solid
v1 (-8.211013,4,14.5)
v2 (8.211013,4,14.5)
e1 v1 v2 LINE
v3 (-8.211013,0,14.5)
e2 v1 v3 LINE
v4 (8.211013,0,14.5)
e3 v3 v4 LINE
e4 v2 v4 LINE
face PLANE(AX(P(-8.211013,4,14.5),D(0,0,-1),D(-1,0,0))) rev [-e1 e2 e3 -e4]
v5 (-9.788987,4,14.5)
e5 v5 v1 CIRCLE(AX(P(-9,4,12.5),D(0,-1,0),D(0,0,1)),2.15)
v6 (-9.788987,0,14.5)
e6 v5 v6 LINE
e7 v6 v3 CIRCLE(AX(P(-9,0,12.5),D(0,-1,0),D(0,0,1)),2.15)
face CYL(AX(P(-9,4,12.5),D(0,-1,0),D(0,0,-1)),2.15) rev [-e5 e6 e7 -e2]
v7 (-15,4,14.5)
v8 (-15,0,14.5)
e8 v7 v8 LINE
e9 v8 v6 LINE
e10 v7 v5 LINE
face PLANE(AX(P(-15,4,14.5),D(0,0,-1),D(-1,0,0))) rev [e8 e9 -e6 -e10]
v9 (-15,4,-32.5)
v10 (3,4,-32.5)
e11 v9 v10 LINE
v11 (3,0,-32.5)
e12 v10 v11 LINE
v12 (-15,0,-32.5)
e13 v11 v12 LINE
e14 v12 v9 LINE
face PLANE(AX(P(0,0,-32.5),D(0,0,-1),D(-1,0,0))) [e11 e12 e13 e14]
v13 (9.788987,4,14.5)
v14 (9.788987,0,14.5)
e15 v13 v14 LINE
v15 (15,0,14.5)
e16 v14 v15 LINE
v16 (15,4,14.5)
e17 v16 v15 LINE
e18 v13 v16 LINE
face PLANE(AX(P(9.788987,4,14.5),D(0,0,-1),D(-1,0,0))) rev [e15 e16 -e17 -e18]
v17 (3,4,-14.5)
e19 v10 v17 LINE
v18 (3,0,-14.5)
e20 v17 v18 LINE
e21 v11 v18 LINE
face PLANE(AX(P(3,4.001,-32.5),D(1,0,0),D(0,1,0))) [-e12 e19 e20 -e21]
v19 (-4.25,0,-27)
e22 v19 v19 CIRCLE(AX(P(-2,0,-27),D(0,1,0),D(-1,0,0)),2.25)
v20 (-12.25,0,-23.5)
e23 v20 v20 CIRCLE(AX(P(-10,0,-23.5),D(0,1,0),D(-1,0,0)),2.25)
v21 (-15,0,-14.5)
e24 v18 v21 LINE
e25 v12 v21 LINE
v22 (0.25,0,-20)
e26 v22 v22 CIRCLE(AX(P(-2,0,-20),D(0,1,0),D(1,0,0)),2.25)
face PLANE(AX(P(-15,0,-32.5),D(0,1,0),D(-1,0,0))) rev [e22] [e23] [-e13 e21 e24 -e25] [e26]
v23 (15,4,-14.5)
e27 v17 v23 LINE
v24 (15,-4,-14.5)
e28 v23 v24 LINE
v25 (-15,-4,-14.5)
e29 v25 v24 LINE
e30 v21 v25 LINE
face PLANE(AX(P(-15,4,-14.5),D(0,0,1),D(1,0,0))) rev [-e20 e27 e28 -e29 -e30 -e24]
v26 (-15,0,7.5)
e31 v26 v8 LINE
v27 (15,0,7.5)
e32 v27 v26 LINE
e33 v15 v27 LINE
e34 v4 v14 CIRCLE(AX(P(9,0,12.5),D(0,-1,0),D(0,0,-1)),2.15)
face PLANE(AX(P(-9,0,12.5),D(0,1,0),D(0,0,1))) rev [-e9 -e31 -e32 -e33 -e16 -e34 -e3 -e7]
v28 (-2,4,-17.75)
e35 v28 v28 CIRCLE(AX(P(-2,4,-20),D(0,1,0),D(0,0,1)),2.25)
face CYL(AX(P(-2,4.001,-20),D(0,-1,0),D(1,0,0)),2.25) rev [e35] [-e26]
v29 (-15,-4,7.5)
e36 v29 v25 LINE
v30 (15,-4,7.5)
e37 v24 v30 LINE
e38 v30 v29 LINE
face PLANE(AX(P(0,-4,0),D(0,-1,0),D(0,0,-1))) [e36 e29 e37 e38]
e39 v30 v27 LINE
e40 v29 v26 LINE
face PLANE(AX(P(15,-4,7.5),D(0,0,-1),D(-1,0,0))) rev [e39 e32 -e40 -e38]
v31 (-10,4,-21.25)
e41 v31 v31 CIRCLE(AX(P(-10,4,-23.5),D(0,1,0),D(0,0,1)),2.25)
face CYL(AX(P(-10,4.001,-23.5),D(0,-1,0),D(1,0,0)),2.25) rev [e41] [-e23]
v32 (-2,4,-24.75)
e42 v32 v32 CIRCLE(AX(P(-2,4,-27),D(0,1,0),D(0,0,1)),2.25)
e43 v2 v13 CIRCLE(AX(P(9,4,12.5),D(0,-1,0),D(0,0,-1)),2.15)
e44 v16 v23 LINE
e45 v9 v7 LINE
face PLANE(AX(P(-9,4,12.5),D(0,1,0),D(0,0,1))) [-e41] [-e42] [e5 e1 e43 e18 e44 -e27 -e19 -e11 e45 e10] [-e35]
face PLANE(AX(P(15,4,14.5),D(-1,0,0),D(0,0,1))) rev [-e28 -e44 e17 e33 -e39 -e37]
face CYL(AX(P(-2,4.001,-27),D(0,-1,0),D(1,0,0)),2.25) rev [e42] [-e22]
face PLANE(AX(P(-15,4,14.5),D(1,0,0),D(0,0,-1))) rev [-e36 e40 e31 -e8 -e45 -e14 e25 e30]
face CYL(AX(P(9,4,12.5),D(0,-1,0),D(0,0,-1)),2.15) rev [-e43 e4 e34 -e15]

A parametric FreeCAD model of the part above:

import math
import FreeCAD as App
import Part
import Sketcher
Q = App.Units.Quantity

doc = App.newDocument("Part")
body = doc.addObject("PartDesign::Body", "Body")

# Sketch on XZ plane
sketch1 = doc.addObject("Sketcher::SketchObject", "Sketch")
body.addObject(sketch1)
sketch1.AttachmentSupport = (doc.XZ_Plane, [""])
sketch1.MapMode = "FlatFace"
sketch1.addGeometry(Part.LineSegment(App.Vector(-15, 14.5, 0), App.Vector(-9.788987, 14.5, 0)), False)
sketch1.addGeometry(Part.ArcOfCircle(Part.Circle(App.Vector(-9, 12.5, 0), App.Vector(0, 0, 1), 2.15), math.radians(111.528904), math.radians(428.471096)), False)
sketch1.addGeometry(Part.LineSegment(App.Vector(-8.211013, 14.5, 0), App.Vector(8.211013, 14.5, 0)), False)
sketch1.addGeometry(Part.ArcOfCircle(Part.Circle(App.Vector(9, 12.5, 0), App.Vector(0, 0, 1), 2.15), math.radians(111.528904), math.radians(428.471096)), False)
sketch1.addGeometry(Part.LineSegment(App.Vector(9.788987, 14.5, 0), App.Vector(15, 14.5, 0)), False)
sketch1.addGeometry(Part.LineSegment(App.Vector(15, 14.5, 0), App.Vector(15, -14.5, 0)), False)
sketch1.addGeometry(Part.LineSegment(App.Vector(15, -14.5, 0), App.Vector(-15, -14.5, 0)), False)
sketch1.addGeometry(Part.LineSegment(App.Vector(-15, -14.5, 0), App.Vector(-15, 14.5, 0)), False)
sketch1.addConstraint(Sketcher.Constraint("Coincident", 0, 2, 1, 1))
sketch1.addConstraint(Sketcher.Constraint("Coincident", 1, 2, 2, 1))
sketch1.addConstraint(Sketcher.Constraint("Coincident", 2, 2, 3, 1))
sketch1.addConstraint(Sketcher.Constraint("Coincident", 3, 2, 4, 1))
sketch1.addConstraint(Sketcher.Constraint("Coincident", 4, 2, 5, 1))
sketch1.addConstraint(Sketcher.Constraint("Coincident", 5, 2, 6, 1))
sketch1.addConstraint(Sketcher.Constraint("Coincident", 6, 2, 7, 1))
sketch1.addConstraint(Sketcher.Constraint("Coincident", 7, 2, 0, 1))
sketch1.addConstraint(Sketcher.Constraint("Horizontal", 0))
sketch1.addConstraint(Sketcher.Constraint("Horizontal", 2))
sketch1.addConstraint(Sketcher.Constraint("Horizontal", 4))
sketch1.addConstraint(Sketcher.Constraint("Vertical", 5))
sketch1.addConstraint(Sketcher.Constraint("Horizontal", 6))
sketch1.addConstraint(Sketcher.Constraint("Vertical", 7))
sketch1.addConstraint(Sketcher.Constraint("Equal", 1, 3))
sketch1.addConstraint(Sketcher.Constraint("Symmetric", 4, 2, 6, 2, -1, 1))
sketch1.addConstraint(Sketcher.Constraint("Symmetric", 1, 3, 3, 3, -2))
sketch1.addConstraint(Sketcher.Constraint("Horizontal", 0, 2, 1, 2))
sketch1.addConstraint(Sketcher.Constraint("Horizontal", 2, 2, 3, 2))
sketch1.addConstraint(Sketcher.Constraint("DistanceX", 6, 2, 6, 1, Q("30 mm")))
sketch1.addConstraint(Sketcher.Constraint("DistanceY", 5, 2, 5, 1, Q("29 mm")))
sketch1.addConstraint(Sketcher.Constraint("Radius", 1, Q("2.15 mm")))
sketch1.addConstraint(Sketcher.Constraint("DistanceX", 1, 3, -1, 1, Q("9 mm")))
sketch1.addConstraint(Sketcher.Constraint("DistanceY", 1, 3, 0, 2, Q("2 mm")))
pad1 = doc.addObject("PartDesign::Pad", "Pad")
body.addObject(pad1)
pad1.Profile = sketch1
pad1.Length = 4
pad1.Reversed = True

# Sketch on XZ plane
sketch2 = doc.addObject("Sketcher::SketchObject", "Sketch001")
body.addObject(sketch2)
sketch2.AttachmentSupport = (doc.XZ_Plane, [""])
sketch2.MapMode = "FlatFace"
sketch2.addGeometry(Part.LineSegment(App.Vector(-15, 7.5, 0), App.Vector(-15, -14.5, 0)), False)
sketch2.addGeometry(Part.LineSegment(App.Vector(-15, -14.5, 0), App.Vector(15, -14.5, 0)), False)
sketch2.addGeometry(Part.LineSegment(App.Vector(15, -14.5, 0), App.Vector(15, 7.5, 0)), False)
sketch2.addGeometry(Part.LineSegment(App.Vector(15, 7.5, 0), App.Vector(-15, 7.5, 0)), False)
sketch2.addConstraint(Sketcher.Constraint("Coincident", 0, 2, 1, 1))
sketch2.addConstraint(Sketcher.Constraint("Coincident", 1, 2, 2, 1))
sketch2.addConstraint(Sketcher.Constraint("Coincident", 2, 2, 3, 1))
sketch2.addConstraint(Sketcher.Constraint("Coincident", 3, 2, 0, 1))
sketch2.addConstraint(Sketcher.Constraint("Vertical", 0))
sketch2.addConstraint(Sketcher.Constraint("Horizontal", 1))
sketch2.addConstraint(Sketcher.Constraint("Vertical", 2))
sketch2.addConstraint(Sketcher.Constraint("Horizontal", 3))
sketch2.addConstraint(Sketcher.Constraint("DistanceX", 1, 1, 1, 2, Q("30 mm")))
sketch2.addConstraint(Sketcher.Constraint("DistanceY", 0, 2, 0, 1, Q("22 mm")))
sketch2.addConstraint(Sketcher.Constraint("DistanceX", 0, 2, -1, 1, Q("15 mm")))
sketch2.addConstraint(Sketcher.Constraint("DistanceY", 0, 2, -1, 1, Q("14.5 mm")))
pad2 = doc.addObject("PartDesign::Pad", "Pad001")
body.addObject(pad2)
pad2.Profile = sketch2
pad2.Length = 4

# Sketch on XY plane
sketch3 = doc.addObject("Sketcher::SketchObject", "Sketch002")
body.addObject(sketch3)
sketch3.AttachmentSupport = (doc.XY_Plane, [""])
sketch3.MapMode = "FlatFace"
sketch3.AttachmentOffset = App.Placement(App.Vector(0, 0, -14.5), App.Rotation())
sketch3.addGeometry(Part.LineSegment(App.Vector(15, 4, 0), App.Vector(15, 0, 0)), False)
sketch3.addGeometry(Part.LineSegment(App.Vector(15, 0, 0), App.Vector(-15, 0, 0)), False)
sketch3.addGeometry(Part.LineSegment(App.Vector(-15, 0, 0), App.Vector(-15, 4, 0)), False)
sketch3.addGeometry(Part.LineSegment(App.Vector(-15, 4, 0), App.Vector(15, 4, 0)), False)
sketch3.addConstraint(Sketcher.Constraint("Coincident", 0, 2, 1, 1))
sketch3.addConstraint(Sketcher.Constraint("Coincident", 1, 2, 2, 1))
sketch3.addConstraint(Sketcher.Constraint("Coincident", 2, 2, 3, 1))
sketch3.addConstraint(Sketcher.Constraint("Coincident", 3, 2, 0, 1))
sketch3.addConstraint(Sketcher.Constraint("Vertical", 0))
sketch3.addConstraint(Sketcher.Constraint("Horizontal", 1))
sketch3.addConstraint(Sketcher.Constraint("Vertical", 2))
sketch3.addConstraint(Sketcher.Constraint("Horizontal", 3))
sketch3.addConstraint(Sketcher.Constraint("Symmetric", 0, 2, 1, 2, -1, 1))
sketch3.addConstraint(Sketcher.Constraint("DistanceX", 1, 2, 1, 1, Q("30 mm")))
sketch3.addConstraint(Sketcher.Constraint("DistanceY", 0, 2, 0, 1, Q("4 mm")))
pad3 = doc.addObject("PartDesign::Pad", "Pad002")
body.addObject(pad3)
pad3.Profile = sketch3
pad3.Length = 18
pad3.Reversed = True

# Sketch on XZ plane
sketch4 = doc.addObject("Sketcher::SketchObject", "Sketch003")
body.addObject(sketch4)
sketch4.AttachmentSupport = (doc.XZ_Plane, [""])
sketch4.MapMode = "FlatFace"
sketch4.addGeometry(Part.Circle(App.Vector(-2, -27, 0), App.Vector(0, 0, 1), 2.25), False)
sketch4.addConstraint(Sketcher.Constraint("Diameter", 0, Q("4.5 mm")))
sketch4.addConstraint(Sketcher.Constraint("DistanceX", 0, 3, -1, 1, Q("2 mm")))
sketch4.addConstraint(Sketcher.Constraint("DistanceY", 0, 3, -1, 1, Q("27 mm")))
pocket1 = doc.addObject("PartDesign::Pocket", "Pocket")
body.addObject(pocket1)
pocket1.Profile = sketch4
pocket1.Type = "UpToFirst"

# Sketch on XZ plane
sketch5 = doc.addObject("Sketcher::SketchObject", "Sketch004")
body.addObject(sketch5)
sketch5.AttachmentSupport = (doc.XZ_Plane, [""])
sketch5.MapMode = "FlatFace"
sketch5.addGeometry(Part.Circle(App.Vector(-10, -23.5, 0), App.Vector(0, 0, 1), 2.25), False)
sketch5.addConstraint(Sketcher.Constraint("Diameter", 0, Q("4.5 mm")))
sketch5.addConstraint(Sketcher.Constraint("DistanceX", 0, 3, -1, 1, Q("10 mm")))
sketch5.addConstraint(Sketcher.Constraint("DistanceY", 0, 3, -1, 1, Q("23.5 mm")))
pocket2 = doc.addObject("PartDesign::Pocket", "Pocket001")
body.addObject(pocket2)
pocket2.Profile = sketch5
pocket2.Type = "UpToFirst"

# Sketch on XZ plane
sketch6 = doc.addObject("Sketcher::SketchObject", "Sketch005")
body.addObject(sketch6)
sketch6.AttachmentSupport = (doc.XZ_Plane, [""])
sketch6.MapMode = "FlatFace"
sketch6.addGeometry(Part.Circle(App.Vector(-2, -20, 0), App.Vector(0, 0, 1), 2.25), False)
sketch6.addConstraint(Sketcher.Constraint("Diameter", 0, Q("4.5 mm")))
sketch6.addConstraint(Sketcher.Constraint("DistanceX", 0, 3, -1, 1, Q("2 mm")))
sketch6.addConstraint(Sketcher.Constraint("DistanceY", 0, 3, -1, 1, Q("20 mm")))
pocket3 = doc.addObject("PartDesign::Pocket", "Pocket002")
body.addObject(pocket3)
pocket3.Profile = sketch6
pocket3.Type = "UpToFirst"

# Sketch on XZ plane
sketch7 = doc.addObject("Sketcher::SketchObject", "Sketch006")
body.addObject(sketch7)
sketch7.AttachmentSupport = (doc.XZ_Plane, [""])
sketch7.MapMode = "FlatFace"
sketch7.addGeometry(Part.LineSegment(App.Vector(3, -32.5, 0), App.Vector(3, -14.5, 0)), False)
sketch7.addGeometry(Part.LineSegment(App.Vector(3, -14.5, 0), App.Vector(15, -14.5, 0)), False)
sketch7.addGeometry(Part.LineSegment(App.Vector(15, -14.5, 0), App.Vector(15, -32.5, 0)), False)
sketch7.addGeometry(Part.LineSegment(App.Vector(15, -32.5, 0), App.Vector(3, -32.5, 0)), False)
sketch7.addConstraint(Sketcher.Constraint("Coincident", 0, 2, 1, 1))
sketch7.addConstraint(Sketcher.Constraint("Coincident", 1, 2, 2, 1))
sketch7.addConstraint(Sketcher.Constraint("Coincident", 2, 2, 3, 1))
sketch7.addConstraint(Sketcher.Constraint("Coincident", 3, 2, 0, 1))
sketch7.addConstraint(Sketcher.Constraint("Vertical", 0))
sketch7.addConstraint(Sketcher.Constraint("Horizontal", 1))
sketch7.addConstraint(Sketcher.Constraint("Vertical", 2))
sketch7.addConstraint(Sketcher.Constraint("Horizontal", 3))
sketch7.addConstraint(Sketcher.Constraint("DistanceX", 1, 1, 1, 2, Q("12 mm")))
sketch7.addConstraint(Sketcher.Constraint("DistanceY", 0, 1, 0, 2, Q("18 mm")))
sketch7.addConstraint(Sketcher.Constraint("DistanceX", -1, 1, 0, 2, Q("3 mm")))
sketch7.addConstraint(Sketcher.Constraint("DistanceY", 0, 2, -1, 1, Q("14.5 mm")))
pocket4 = doc.addObject("PartDesign::Pocket", "Pocket003")
body.addObject(pocket4)
pocket4.Profile = sketch7
pocket4.Type = "UpToFirst"

doc.recompute()
